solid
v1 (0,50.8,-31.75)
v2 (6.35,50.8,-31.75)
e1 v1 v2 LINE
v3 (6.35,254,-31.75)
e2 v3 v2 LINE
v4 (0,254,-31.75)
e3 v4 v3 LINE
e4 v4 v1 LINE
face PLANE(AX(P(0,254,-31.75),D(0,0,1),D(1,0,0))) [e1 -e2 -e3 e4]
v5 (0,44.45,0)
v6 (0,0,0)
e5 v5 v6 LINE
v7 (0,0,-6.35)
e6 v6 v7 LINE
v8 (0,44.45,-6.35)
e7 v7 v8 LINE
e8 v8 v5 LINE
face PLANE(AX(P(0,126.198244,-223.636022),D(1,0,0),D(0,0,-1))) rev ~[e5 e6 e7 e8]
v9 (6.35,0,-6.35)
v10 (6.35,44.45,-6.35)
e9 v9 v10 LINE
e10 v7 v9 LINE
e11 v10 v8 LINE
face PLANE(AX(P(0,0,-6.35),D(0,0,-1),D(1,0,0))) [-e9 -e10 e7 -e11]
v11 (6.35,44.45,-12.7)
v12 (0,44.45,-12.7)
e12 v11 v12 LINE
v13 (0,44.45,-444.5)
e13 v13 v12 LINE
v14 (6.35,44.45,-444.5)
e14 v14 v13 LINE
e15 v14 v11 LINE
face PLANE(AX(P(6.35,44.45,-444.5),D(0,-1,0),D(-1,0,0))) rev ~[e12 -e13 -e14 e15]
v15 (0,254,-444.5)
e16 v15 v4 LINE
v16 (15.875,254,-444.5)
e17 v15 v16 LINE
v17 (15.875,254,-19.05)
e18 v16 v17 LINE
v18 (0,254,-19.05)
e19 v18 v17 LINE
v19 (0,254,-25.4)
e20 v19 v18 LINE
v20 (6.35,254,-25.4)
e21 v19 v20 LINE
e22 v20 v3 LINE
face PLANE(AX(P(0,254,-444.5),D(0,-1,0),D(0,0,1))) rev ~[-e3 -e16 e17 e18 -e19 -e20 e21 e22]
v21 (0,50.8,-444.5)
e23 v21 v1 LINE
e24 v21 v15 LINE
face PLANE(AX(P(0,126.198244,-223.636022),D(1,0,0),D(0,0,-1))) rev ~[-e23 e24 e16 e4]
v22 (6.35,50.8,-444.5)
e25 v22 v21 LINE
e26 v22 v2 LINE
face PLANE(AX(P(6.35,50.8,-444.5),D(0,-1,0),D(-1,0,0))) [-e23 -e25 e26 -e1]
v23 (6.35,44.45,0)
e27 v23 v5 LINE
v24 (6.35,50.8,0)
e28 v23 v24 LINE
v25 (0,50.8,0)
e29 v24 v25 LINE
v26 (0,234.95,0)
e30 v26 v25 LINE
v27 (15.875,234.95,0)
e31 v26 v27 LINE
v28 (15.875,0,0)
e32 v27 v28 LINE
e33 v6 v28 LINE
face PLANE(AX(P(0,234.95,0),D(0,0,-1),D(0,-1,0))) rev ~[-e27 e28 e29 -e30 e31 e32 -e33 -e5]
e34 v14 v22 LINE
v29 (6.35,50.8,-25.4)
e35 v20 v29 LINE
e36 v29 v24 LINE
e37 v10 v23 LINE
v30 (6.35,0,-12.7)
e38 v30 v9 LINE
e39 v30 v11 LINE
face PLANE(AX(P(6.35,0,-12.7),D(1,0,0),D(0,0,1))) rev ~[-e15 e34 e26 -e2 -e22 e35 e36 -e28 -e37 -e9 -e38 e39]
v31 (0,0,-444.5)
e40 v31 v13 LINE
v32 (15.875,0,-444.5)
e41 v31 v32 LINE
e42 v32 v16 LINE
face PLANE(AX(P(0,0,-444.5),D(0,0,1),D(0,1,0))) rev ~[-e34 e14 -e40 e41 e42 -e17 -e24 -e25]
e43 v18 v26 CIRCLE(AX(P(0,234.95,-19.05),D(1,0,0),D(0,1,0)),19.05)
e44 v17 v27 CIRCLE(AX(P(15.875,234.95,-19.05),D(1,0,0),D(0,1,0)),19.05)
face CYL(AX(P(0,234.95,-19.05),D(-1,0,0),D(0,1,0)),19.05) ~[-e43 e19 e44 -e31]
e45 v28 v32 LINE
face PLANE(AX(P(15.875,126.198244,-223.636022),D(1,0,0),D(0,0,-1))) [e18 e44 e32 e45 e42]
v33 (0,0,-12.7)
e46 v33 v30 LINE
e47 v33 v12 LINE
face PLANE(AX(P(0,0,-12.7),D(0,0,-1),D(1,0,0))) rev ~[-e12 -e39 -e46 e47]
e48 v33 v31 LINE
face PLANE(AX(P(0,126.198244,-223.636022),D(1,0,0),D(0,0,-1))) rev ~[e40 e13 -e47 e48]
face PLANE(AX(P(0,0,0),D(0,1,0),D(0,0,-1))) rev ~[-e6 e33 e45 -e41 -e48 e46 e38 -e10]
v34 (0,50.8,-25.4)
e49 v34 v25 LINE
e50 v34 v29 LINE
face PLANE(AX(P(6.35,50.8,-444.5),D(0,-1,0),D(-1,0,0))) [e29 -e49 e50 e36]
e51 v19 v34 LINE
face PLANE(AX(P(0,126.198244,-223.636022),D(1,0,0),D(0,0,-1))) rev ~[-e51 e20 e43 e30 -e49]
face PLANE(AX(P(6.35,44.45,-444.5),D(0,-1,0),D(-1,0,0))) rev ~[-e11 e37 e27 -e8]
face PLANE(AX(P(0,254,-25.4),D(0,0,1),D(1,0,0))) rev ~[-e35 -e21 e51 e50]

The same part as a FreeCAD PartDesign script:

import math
import FreeCAD as App
import Part
import Sketcher
from FreeCAD import Vector
Q = App.Units.Quantity


def add_polygon(sketch, points):
    """Adds a closed chain of lines whose ends are joined by coincident constraints."""
    first, n = sketch.GeometryCount, len(points)
    for a, b in zip(points, points[1:] + points[:1]):
        sketch.addGeometry(Part.LineSegment(App.Vector(*a, 0), App.Vector(*b, 0)), False)
    for i in range(n):
        sketch.addConstraint(Sketcher.Constraint("Coincident", first + i, 2, first + (i + 1) % n, 1))

doc = App.newDocument("Part")
params = doc.addObject("Spreadsheet::Sheet", "Params")
for row, (alias, value) in enumerate([
    ("sketch1_width", "10 in"),
    ("sketch1_radius", "0.75 in"),
    ("sketch1_height", "17.5 in"),
    ("pad1_length", "0.625 in"),
    ("sketch2_width", "0.25 in"),
    ("sketch3_width", "0.25 in"),
    ("sketch4_width", "0.25 in"),
], start=1):
    params.set(f"A{row}", alias)
    params.set(f"B{row}", "=" + value)
    params.setAlias(f"B{row}", alias)

body = doc.addObject("PartDesign::Body", "Body")

# Sketch on YZ plane
sketch1 = body.newObject("Sketcher::SketchObject", "Sketch")
sketch1.AttachmentSupport = (doc.getObject("YZ_Plane"), [""])
sketch1.MapMode = "FlatFace"
sketch1.addGeometry([
    Part.LineSegment(Vector(0, 0, 0), Vector(0, -444.5, 0)),  # 0
    Part.LineSegment(Vector(0, -444.5, 0), Vector(254, -444.5, 0)),  # 1
    Part.LineSegment(Vector(254, -444.5, 0), Vector(254, -19.05, 0)),  # 2
    Part.ArcOfCircle(Part.Circle(Vector(234.95, -19.05, 0), Vector(0, 0, 1), 19.05), math.radians(0), math.radians(90)),  # 3
    Part.LineSegment(Vector(234.95, 0, 0), Vector(0, 0, 0)),  # 4
], False)
sketch1.addConstraint([
    Sketcher.Constraint("Coincident", 0, 2, 1, 1),
    Sketcher.Constraint("Coincident", 1, 2, 2, 1),
    Sketcher.Constraint("Tangent", 2, 2, 3, 1),
    Sketcher.Constraint("Tangent", 3, 2, 4, 1),
    Sketcher.Constraint("Coincident", 4, 2, 0, 1),
    Sketcher.Constraint("Vertical", 0),
    Sketcher.Constraint("Horizontal", 1),
    Sketcher.Constraint("Vertical", 2),
    Sketcher.Constraint("Horizontal", 4),
    Sketcher.Constraint("Coincident", 4, 2, -1, 1),
    Sketcher.Constraint("DistanceX", 1, 1, 1, 2, Q("10 in")),
    Sketcher.Constraint("Radius", 3, Q("0.75 in")),
    Sketcher.Constraint("DistanceY", 0, 2, 0, 1, Q("17.5 in")),
])
sketch1.setExpression("Constraints[10]", "Params.sketch1_width")
sketch1.setExpression("Constraints[11]", "Params.sketch1_radius")
sketch1.setExpression("Constraints[12]", "Params.sketch1_height")
pad1 = body.newObject("PartDesign::Pad", "Pad")
pad1.Profile = sketch1
pad1.setExpression("Length", "Params.pad1_length")

# Sketch on XY plane
sketch2 = body.newObject("Sketcher::SketchObject", "Sketch001")
sketch2.AttachmentSupport = (doc.getObject("XY_Plane"), [""])
sketch2.MapMode = "FlatFace"
sketch2.AttachmentOffset = App.Placement(Vector(0, 0, -17.5 * 25.4), App.Rotation())
add_polygon(sketch2, [(6.35, 50.8), (6.35, 44.45), (0, 44.45), (0, 50.8)])  # lines 0-3
sketch2.addConstraint([
    Sketcher.Constraint("Vertical", 0),
    Sketcher.Constraint("Horizontal", 1),
    Sketcher.Constraint("Vertical", 2),
    Sketcher.Constraint("Horizontal", 3),
    Sketcher.Constraint("PointOnObject", 1, 2, -2),
    Sketcher.Constraint("Equal", 3, 0),
    Sketcher.Constraint("DistanceY", -1, 1, 2, 2, Q("2 in")),
    Sketcher.Constraint("DistanceX", 1, 2, 1, 1, Q("0.25 in")),
])
sketch2.setExpression("Constraints[11]", "Params.sketch2_width")
pocket1 = body.newObject("PartDesign::Pocket", "Pocket")
pocket1.Profile = sketch2
pocket1.Type = "ThroughAll"
pocket1.Reversed = True

# Sketch on XZ plane
sketch3 = body.newObject("Sketcher::SketchObject", "Sketch002")
sketch3.AttachmentSupport = (doc.getObject("XZ_Plane"), [""])
sketch3.MapMode = "FlatFace"
add_polygon(sketch3, [(0, -6.35), (0, -12.7), (6.35, -12.7), (6.35, -6.35)])  # lines 0-3
sketch3.addConstraint([
    Sketcher.Constraint("Vertical", 0),
    Sketcher.Constraint("Horizontal", 1),
    Sketcher.Constraint("Vertical", 2),
    Sketcher.Constraint("Horizontal", 3),
    Sketcher.Constraint("PointOnObject", 0, 2, -2),
    Sketcher.Constraint("Equal", 3, 0),
    Sketcher.Constraint("DistanceX", 1, 1, 1, 2, Q("0.25 in")),
    Sketcher.Constraint("DistanceY", 0, 2, -1, 1, Q("0.5 in")),
])
sketch3.setExpression("Constraints[10]", "Params.sketch3_width")
pocket2 = body.newObject("PartDesign::Pocket", "Pocket001")
pocket2.Profile = sketch3
pocket2.Type = "UpToFirst"

# Sketch on XZ plane
sketch4 = body.newObject("Sketcher::SketchObject", "Sketch003")
sketch4.AttachmentSupport = (doc.getObject("XZ_Plane"), [""])
sketch4.MapMode = "FlatFace"
sketch4.AttachmentOffset = App.Placement(Vector(0, 0, -10 * 25.4), App.Rotation())
add_polygon(sketch4, [(0, -31.75), (0, -25.4), (6.35, -25.4), (6.35, -31.75)])  # lines 0-3
sketch4.addConstraint([
    Sketcher.Constraint("Vertical", 0),
    Sketcher.Constraint("Horizontal", 1),
    Sketcher.Constraint("Vertical", 2),
    Sketcher.Constraint("Horizontal", 3),
    Sketcher.Constraint("PointOnObject", 0, 2, -2),
    Sketcher.Constraint("Equal", 3, 0),
    Sketcher.Constraint("DistanceY", 0, 2, -1, 1, Q("1 in")),
    Sketcher.Constraint("DistanceX", 1, 1, 1, 2, Q("0.25 in")),
])
sketch4.setExpression("Constraints[11]", "Params.sketch4_width")
pocket3 = body.newObject("PartDesign::Pocket", "Pocket002")
pocket3.Profile = sketch4
pocket3.Type = "UpToFirst"
pocket3.Reversed = True

doc.recompute()
